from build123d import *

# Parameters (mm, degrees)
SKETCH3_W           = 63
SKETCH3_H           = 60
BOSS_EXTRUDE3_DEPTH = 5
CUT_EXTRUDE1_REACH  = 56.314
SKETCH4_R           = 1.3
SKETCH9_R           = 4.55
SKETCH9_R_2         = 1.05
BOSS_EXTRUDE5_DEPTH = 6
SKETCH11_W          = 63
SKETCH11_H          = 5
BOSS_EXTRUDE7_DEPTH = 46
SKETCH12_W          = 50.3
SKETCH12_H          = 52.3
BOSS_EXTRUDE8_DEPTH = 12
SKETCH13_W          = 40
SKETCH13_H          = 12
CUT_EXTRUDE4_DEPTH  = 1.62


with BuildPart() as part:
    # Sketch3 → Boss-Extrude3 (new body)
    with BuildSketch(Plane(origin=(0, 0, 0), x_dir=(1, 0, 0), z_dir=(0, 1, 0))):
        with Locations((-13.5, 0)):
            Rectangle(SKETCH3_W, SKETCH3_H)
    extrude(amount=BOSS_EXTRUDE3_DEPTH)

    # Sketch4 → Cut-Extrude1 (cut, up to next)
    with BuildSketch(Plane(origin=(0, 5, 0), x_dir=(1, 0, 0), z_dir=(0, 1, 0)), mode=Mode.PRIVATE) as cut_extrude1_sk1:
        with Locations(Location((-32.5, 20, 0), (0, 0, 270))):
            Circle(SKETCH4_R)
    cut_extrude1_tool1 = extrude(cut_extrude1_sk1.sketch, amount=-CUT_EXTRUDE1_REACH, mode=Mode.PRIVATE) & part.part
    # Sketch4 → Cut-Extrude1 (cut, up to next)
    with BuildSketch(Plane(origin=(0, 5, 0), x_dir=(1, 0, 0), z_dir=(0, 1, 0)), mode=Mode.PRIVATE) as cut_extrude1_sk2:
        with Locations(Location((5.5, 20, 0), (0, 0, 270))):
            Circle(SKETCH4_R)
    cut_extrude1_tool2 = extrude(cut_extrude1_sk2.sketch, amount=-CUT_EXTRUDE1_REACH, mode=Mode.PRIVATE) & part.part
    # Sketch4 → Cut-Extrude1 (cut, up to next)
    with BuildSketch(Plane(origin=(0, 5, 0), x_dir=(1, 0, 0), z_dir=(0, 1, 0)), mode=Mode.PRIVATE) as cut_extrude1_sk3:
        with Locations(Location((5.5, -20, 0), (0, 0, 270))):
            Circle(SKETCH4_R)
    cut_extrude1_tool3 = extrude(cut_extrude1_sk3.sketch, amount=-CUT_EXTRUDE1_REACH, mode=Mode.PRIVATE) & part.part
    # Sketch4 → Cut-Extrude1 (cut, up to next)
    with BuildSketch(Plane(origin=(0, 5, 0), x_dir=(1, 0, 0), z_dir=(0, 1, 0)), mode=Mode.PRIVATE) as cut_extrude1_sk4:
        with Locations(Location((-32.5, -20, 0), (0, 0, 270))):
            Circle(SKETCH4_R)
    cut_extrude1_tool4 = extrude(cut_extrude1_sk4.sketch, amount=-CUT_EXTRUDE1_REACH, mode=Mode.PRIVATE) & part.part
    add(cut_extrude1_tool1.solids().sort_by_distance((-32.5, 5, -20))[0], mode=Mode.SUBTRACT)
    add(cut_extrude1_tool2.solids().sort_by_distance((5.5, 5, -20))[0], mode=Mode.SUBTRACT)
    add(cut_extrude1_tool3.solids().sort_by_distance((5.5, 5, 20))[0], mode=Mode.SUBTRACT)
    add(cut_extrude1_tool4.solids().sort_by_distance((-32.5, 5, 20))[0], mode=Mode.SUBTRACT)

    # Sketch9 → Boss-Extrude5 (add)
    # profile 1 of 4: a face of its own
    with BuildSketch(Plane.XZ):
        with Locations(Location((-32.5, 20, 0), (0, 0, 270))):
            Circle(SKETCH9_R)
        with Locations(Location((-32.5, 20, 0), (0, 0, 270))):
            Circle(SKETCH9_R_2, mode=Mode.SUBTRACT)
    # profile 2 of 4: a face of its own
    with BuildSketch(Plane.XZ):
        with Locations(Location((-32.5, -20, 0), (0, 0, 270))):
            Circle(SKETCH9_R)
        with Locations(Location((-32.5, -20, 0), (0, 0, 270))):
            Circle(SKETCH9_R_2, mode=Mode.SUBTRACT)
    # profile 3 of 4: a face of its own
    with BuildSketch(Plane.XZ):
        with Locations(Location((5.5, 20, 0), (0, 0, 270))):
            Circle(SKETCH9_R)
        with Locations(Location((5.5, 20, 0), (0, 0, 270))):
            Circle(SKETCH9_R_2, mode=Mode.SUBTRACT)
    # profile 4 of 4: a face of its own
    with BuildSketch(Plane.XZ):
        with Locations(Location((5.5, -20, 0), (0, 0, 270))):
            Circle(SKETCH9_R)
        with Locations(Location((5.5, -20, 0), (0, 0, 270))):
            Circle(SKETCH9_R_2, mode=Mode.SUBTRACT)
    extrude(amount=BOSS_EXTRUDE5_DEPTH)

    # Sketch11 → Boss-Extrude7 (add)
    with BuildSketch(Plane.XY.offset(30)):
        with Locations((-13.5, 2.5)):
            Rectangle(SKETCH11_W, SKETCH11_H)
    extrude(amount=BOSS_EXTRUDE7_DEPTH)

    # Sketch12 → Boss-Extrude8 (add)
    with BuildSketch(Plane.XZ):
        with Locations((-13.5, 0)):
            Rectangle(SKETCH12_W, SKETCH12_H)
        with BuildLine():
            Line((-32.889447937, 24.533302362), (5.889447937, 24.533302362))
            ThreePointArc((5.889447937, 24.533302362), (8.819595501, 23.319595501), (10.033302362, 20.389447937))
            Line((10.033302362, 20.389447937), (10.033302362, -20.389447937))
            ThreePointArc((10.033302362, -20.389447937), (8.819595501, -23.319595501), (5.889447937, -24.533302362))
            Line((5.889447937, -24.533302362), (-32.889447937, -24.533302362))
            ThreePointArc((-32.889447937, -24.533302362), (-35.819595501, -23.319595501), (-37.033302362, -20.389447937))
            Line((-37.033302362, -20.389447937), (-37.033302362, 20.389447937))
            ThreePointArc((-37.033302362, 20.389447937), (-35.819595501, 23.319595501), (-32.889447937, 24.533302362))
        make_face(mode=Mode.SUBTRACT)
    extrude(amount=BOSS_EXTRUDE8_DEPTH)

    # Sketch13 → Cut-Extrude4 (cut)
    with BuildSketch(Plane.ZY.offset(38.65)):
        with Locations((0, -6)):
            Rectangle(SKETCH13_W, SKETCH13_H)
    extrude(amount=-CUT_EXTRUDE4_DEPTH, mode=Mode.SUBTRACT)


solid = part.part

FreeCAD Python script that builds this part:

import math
import FreeCAD as App
import Part
import Sketcher

V = App.Vector

doc = App.newDocument("Part")
body = doc.addObject("PartDesign::Body", "Body")

sketch1 = body.newObject("Sketcher::SketchObject", "Sketch")
sketch1.AttachmentSupport = (doc.getObject("XZ_Plane"), [""])
sketch1.MapMode = "FlatFace"
sketch1.addGeometry(Part.LineSegment(V(-45, -30, 0), V(-45, 30, 0)), False)
sketch1.addGeometry(Part.LineSegment(V(-45, 30, 0), V(18, 30, 0)), False)
sketch1.addGeometry(Part.LineSegment(V(18, 30, 0), V(18, -30, 0)), False)
sketch1.addGeometry(Part.LineSegment(V(18, -30, 0), V(-45, -30, 0)), False)
sketch1.addConstraint(Sketcher.Constraint("Coincident", 0, 2, 1, 1))
sketch1.addConstraint(Sketcher.Constraint("Coincident", 1, 2, 2, 1))
sketch1.addConstraint(Sketcher.Constraint("Coincident", 2, 2, 3, 1))
sketch1.addConstraint(Sketcher.Constraint("Coincident", 3, 2, 0, 1))
sketch1.addConstraint(Sketcher.Constraint("Vertical", 0))
sketch1.addConstraint(Sketcher.Constraint("Horizontal", 1))
sketch1.addConstraint(Sketcher.Constraint("Vertical", 2))
sketch1.addConstraint(Sketcher.Constraint("Horizontal", 3))
sketch1.addConstraint(Sketcher.Constraint("DistanceX", 1, 1, 1, 2, 63.0))
sketch1.addConstraint(Sketcher.Constraint("DistanceY", 0, 1, 0, 2, 60.0))
sketch1.addConstraint(Sketcher.Constraint("DistanceX", 0, 2, -1, 1, 45.0))
sketch1.addConstraint(Sketcher.Constraint("DistanceY", -1, 1, 0, 2, 30.0))
pad1 = body.newObject("PartDesign::Pad", "Pad")
pad1.Profile = sketch1
pad1.Length = 5
pad1.Reversed = True

sketch2 = body.newObject("Sketcher::SketchObject", "Sketch001")
sketch2.AttachmentSupport = (doc.getObject("XZ_Plane"), [""])
sketch2.MapMode = "FlatFace"
sketch2.AttachmentOffset = App.Placement(V(0, 0, -5), App.Rotation())
sketch2.addGeometry(Part.Circle(V(-32.5, -20, 0), V(0, 0, 1), 1.3), False)
sketch2.addConstraint(Sketcher.Constraint("Diameter", 0, 2.6))
sketch2.addConstraint(Sketcher.Constraint("DistanceY", 0, 3, -1, 1, 20.0))
sketch2.addConstraint(Sketcher.Constraint("DistanceX", 0, 3, -1, 1, 32.5))
pocket1 = body.newObject("PartDesign::Pocket", "Pocket")
pocket1.Profile = sketch2
pocket1.Type = "UpToFirst"
pocket1.Reversed = True

sketch3 = body.newObject("Sketcher::SketchObject", "Sketch002")
sketch3.AttachmentSupport = (doc.getObject("XZ_Plane"), [""])
sketch3.MapMode = "FlatFace"
sketch3.AttachmentOffset = App.Placement(V(0, 0, -5), App.Rotation())
sketch3.addGeometry(Part.Circle(V(5.5, -20, 0), V(0, 0, 1), 1.3), False)
sketch3.addConstraint(Sketcher.Constraint("Diameter", 0, 2.6))
sketch3.addConstraint(Sketcher.Constraint("DistanceY", 0, 3, -1, 1, 20.0))
sketch3.addConstraint(Sketcher.Constraint("DistanceX", -1, 1, 0, 3, 5.5))
pocket2 = body.newObject("PartDesign::Pocket", "Pocket001")
pocket2.Profile = sketch3
pocket2.Type = "UpToFirst"
pocket2.Reversed = True

sketch4 = body.newObject("Sketcher::SketchObject", "Sketch003")
sketch4.AttachmentSupport = (doc.getObject("XZ_Plane"), [""])
sketch4.MapMode = "FlatFace"
sketch4.AttachmentOffset = App.Placement(V(0, 0, -5), App.Rotation())
sketch4.addGeometry(Part.Circle(V(5.5, 20, 0), V(0, 0, 1), 1.3), False)
sketch4.addConstraint(Sketcher.Constraint("Diameter", 0, 2.6))
sketch4.addConstraint(Sketcher.Constraint("DistanceY", -1, 1, 0, 3, 20.0))
sketch4.addConstraint(Sketcher.Constraint("DistanceX", -1, 1, 0, 3, 5.5))
pocket3 = body.newObject("PartDesign::Pocket", "Pocket002")
pocket3.Profile = sketch4
pocket3.Type = "UpToFirst"
pocket3.Reversed = True

sketch5 = body.newObject("Sketcher::SketchObject", "Sketch004")
sketch5.AttachmentSupport = (doc.getObject("XZ_Plane"), [""])
sketch5.MapMode = "FlatFace"
sketch5.AttachmentOffset = App.Placement(V(0, 0, -5), App.Rotation())
sketch5.addGeometry(Part.Circle(V(-32.5, 20, 0), V(0, 0, 1), 1.3), False)
sketch5.addConstraint(Sketcher.Constraint("Diameter", 0, 2.6))
sketch5.addConstraint(Sketcher.Constraint("DistanceY", -1, 1, 0, 3, 20.0))
sketch5.addConstraint(Sketcher.Constraint("DistanceX", 0, 3, -1, 1, 32.5))
pocket4 = body.newObject("PartDesign::Pocket", "Pocket003")
pocket4.Profile = sketch5
pocket4.Type = "UpToFirst"
pocket4.Reversed = True

sketch6 = body.newObject("Sketcher::SketchObject", "Sketch005")
sketch6.AttachmentSupport = (doc.getObject("XZ_Plane"), [""])
sketch6.MapMode = "FlatFace"
sketch6.addGeometry(Part.Circle(V(-32.5, 20, 0), V(0, 0, 1), 4.5), False)
sketch6.addGeometry(Part.Circle(V(-32.5, 20, 0), V(0, 0, 1), 1.1), False)
sketch6.addGeometry(Part.Circle(V(-32.5, -20, 0), V(0, 0, 1), 4.5), False)
sketch6.addGeometry(Part.Circle(V(-32.5, -20, 0), V(0, 0, 1), 1.1), False)
sketch6.addGeometry(Part.Circle(V(5.5, 20, 0), V(0, 0, 1), 4.5), False)
sketch6.addGeometry(Part.Circle(V(5.5, 20, 0), V(0, 0, 1), 1.1), False)
sketch6.addGeometry(Part.Circle(V(5.5, -20, 0), V(0, 0, 1), 4.5), False)
sketch6.addGeometry(Part.Circle(V(5.5, -20, 0), V(0, 0, 1), 1.1), False)
sketch6.addConstraint(Sketcher.Constraint("Coincident", 1, 3, 0, 3))
sketch6.addConstraint(Sketcher.Constraint("Coincident", 3, 3, 2, 3))
sketch6.addConstraint(Sketcher.Constraint("Coincident", 5, 3, 4, 3))
sketch6.addConstraint(Sketcher.Constraint("Coincident", 7, 3, 6, 3))
sketch6.addConstraint(Sketcher.Constraint("Equal", 0, 2))
sketch6.addConstraint(Sketcher.Constraint("Equal", 1, 3))
sketch6.addConstraint(Sketcher.Constraint("Equal", 2, 4))
sketch6.addConstraint(Sketcher.Constraint("Equal", 3, 5))
sketch6.addConstraint(Sketcher.Constraint("Equal", 4, 6))
sketch6.addConstraint(Sketcher.Constraint("Equal", 5, 7))
sketch6.addConstraint(Sketcher.Constraint("Symmetric", 0, 3, 2, 3, -1))
sketch6.addConstraint(Sketcher.Constraint("Symmetric", 4, 3, 6, 3, -1))
sketch6.addConstraint(Sketcher.Constraint("Horizontal", 1, 3, 4, 3))
sketch6.addConstraint(Sketcher.Constraint("Diameter", 0, 9.1))
sketch6.addConstraint(Sketcher.Constraint("Diameter", 1, 2.1))
sketch6.addConstraint(Sketcher.Constraint("DistanceY", -1, 1, 0, 3, 20.0))
sketch6.addConstraint(Sketcher.Constraint("DistanceX", 0, 3, 4, 3, 38.0))
sketch6.addConstraint(Sketcher.Constraint("DistanceX", 0, 3, -1, 1, 32.5))
pad2 = body.newObject("PartDesign::Pad", "Pad001")
pad2.Profile = sketch6
pad2.Length = 6

sketch7 = body.newObject("Sketcher::SketchObject", "Sketch006")
sketch7.AttachmentSupport = (doc.getObject("XY_Plane"), [""])
sketch7.MapMode = "FlatFace"
sketch7.AttachmentOffset = App.Placement(V(0, 0, 30), App.Rotation())
sketch7.addGeometry(Part.LineSegment(V(-45, 5, 0), V(-45, 0, 0)), False)
sketch7.addGeometry(Part.LineSegment(V(-45, 0, 0), V(18, 0, 0)), False)
sketch7.addGeometry(Part.LineSegment(V(18, 0, 0), V(18, 5, 0)), False)
sketch7.addGeometry(Part.LineSegment(V(18, 5, 0), V(-45, 5, 0)), False)
sketch7.addConstraint(Sketcher.Constraint("Coincident", 0, 2, 1, 1))
sketch7.addConstraint(Sketcher.Constraint("Coincident", 1, 2, 2, 1))
sketch7.addConstraint(Sketcher.Constraint("Coincident", 2, 2, 3, 1))
sketch7.addConstraint(Sketcher.Constraint("Coincident", 3, 2, 0, 1))
sketch7.addConstraint(Sketcher.Constraint("Vertical", 0))
sketch7.addConstraint(Sketcher.Constraint("Horizontal", 1))
sketch7.addConstraint(Sketcher.Constraint("Vertical", 2))
sketch7.addConstraint(Sketcher.Constraint("Horizontal", 3))
sketch7.addConstraint(Sketcher.Constraint("PointOnObject", 0, 2, -1))
sketch7.addConstraint(Sketcher.Constraint("DistanceX", 1, 1, 1, 2, 63.0))
sketch7.addConstraint(Sketcher.Constraint("DistanceY", 0, 2, 0, 1, 5.0))
sketch7.addConstraint(Sketcher.Constraint("DistanceX", 0, 2, -1, 1, 45.0))
pad3 = body.newObject("PartDesign::Pad", "Pad002")
pad3.Profile = sketch7
pad3.Length = 46

sketch8 = body.newObject("Sketcher::SketchObject", "Sketch007")
sketch8.AttachmentSupport = (doc.getObject("XZ_Plane"), [""])
sketch8.MapMode = "FlatFace"
sketch8.addGeometry(Part.LineSegment(V(-38.6, 26.1, 0), V(-38.6, -26.1, 0)), False)
sketch8.addGeometry(Part.LineSegment(V(-38.6, -26.1, 0), V(11.7, -26.1, 0)), False)
sketch8.addGeometry(Part.LineSegment(V(11.7, -26.1, 0), V(11.7, 26.1, 0)), False)
sketch8.addGeometry(Part.LineSegment(V(11.7, 26.1, 0), V(-38.6, 26.1, 0)), False)
sketch8.addGeometry(Part.ArcOfCircle(Part.Circle(V(-32.9, 20.4, 0), V(0, 0, 1), 4.1), math.radians(90), math.radians(180)), False)
sketch8.addGeometry(Part.LineSegment(V(-32.9, 24.5, 0), V(5.9, 24.5, 0)), False)
sketch8.addGeometry(Part.ArcOfCircle(Part.Circle(V(5.9, 20.4, 0), V(0, 0, 1), 4.1), math.radians(0), math.radians(90)), False)
sketch8.addGeometry(Part.LineSegment(V(10, 20.4, 0), V(10, -20.4, 0)), False)
sketch8.addGeometry(Part.ArcOfCircle(Part.Circle(V(5.9, -20.4, 0), V(0, 0, 1), 4.1), math.radians(-90), math.radians(0)), False)
sketch8.addGeometry(Part.LineSegment(V(5.9, -24.5, 0), V(-32.9, -24.5, 0)), False)
sketch8.addGeometry(Part.ArcOfCircle(Part.Circle(V(-32.9, -20.4, 0), V(0, 0, 1), 4.1), math.radians(-180), math.radians(-90)), False)
sketch8.addGeometry(Part.LineSegment(V(-37, -20.4, 0), V(-37, 20.4, 0)), False)
sketch8.addConstraint(Sketcher.Constraint("Coincident", 0, 2, 1, 1))
sketch8.addConstraint(Sketcher.Constraint("Coincident", 1, 2, 2, 1))
sketch8.addConstraint(Sketcher.Constraint("Coincident", 2, 2, 3, 1))
sketch8.addConstraint(Sketcher.Constraint("Coincident", 3, 2, 0, 1))
sketch8.addConstraint(Sketcher.Constraint("Tangent", 4, 1, 5, 1))
sketch8.addConstraint(Sketcher.Constraint("Tangent", 5, 2, 6, 2))
sketch8.addConstraint(Sketcher.Constraint("Tangent", 6, 1, 7, 1))
sketch8.addConstraint(Sketcher.Constraint("Tangent", 7, 2, 8, 2))
sketch8.addConstraint(Sketcher.Constraint("Tangent", 8, 1, 9, 1))
sketch8.addConstraint(Sketcher.Constraint("Tangent", 9, 2, 10, 2))
sketch8.addConstraint(Sketcher.Constraint("Tangent", 10, 1, 11, 1))
sketch8.addConstraint(Sketcher.Constraint("Tangent", 11, 2, 4, 2))
sketch8.addConstraint(Sketcher.Constraint("Vertical", 0))
sketch8.addConstraint(Sketcher.Constraint("Horizontal", 1))
sketch8.addConstraint(Sketcher.Constraint("Vertical", 2))
sketch8.addConstraint(Sketcher.Constraint("Horizontal", 3))
sketch8.addConstraint(Sketcher.Constraint("Horizontal", 5))
sketch8.addConstraint(Sketcher.Constraint("Vertical", 7))
sketch8.addConstraint(Sketcher.Constraint("Horizontal", 9))
sketch8.addConstraint(Sketcher.Constraint("Vertical", 11))
sketch8.addConstraint(Sketcher.Constraint("Equal", 4, 6))
sketch8.addConstraint(Sketcher.Constraint("Equal", 6, 8))
sketch8.addConstraint(Sketcher.Constraint("Equal", 8, 10))
sketch8.addConstraint(Sketcher.Constraint("DistanceX", 1, 1, 1, 2, 50.3))
sketch8.addConstraint(Sketcher.Constraint("DistanceY", 0, 2, 0, 1, 52.3))
sketch8.addConstraint(Sketcher.Constraint("DistanceX", 0, 2, -1, 1, 38.65))
sketch8.addConstraint(Sketcher.Constraint("DistanceY", 0, 2, -1, 1, 26.15))
sketch8.addConstraint(Sketcher.Constraint("Radius", 4, 4.143854))
sketch8.addConstraint(Sketcher.Constraint("DistanceX", 5, 1, 5, 2, 38.778896))
sketch8.addConstraint(Sketcher.Constraint("DistanceY", 7, 2, 7, 1, 40.778896))
sketch8.addConstraint(Sketcher.Constraint("DistanceX", 4, 3, -1, 1, 32.889448))
sketch8.addConstraint(Sketcher.Constraint("DistanceY", -1, 1, 4, 3, 20.389448))
pad4 = body.newObject("PartDesign::Pad", "Pad003")
pad4.Profile = sketch8
pad4.Length = 12

sketch9 = body.newObject("Sketcher::SketchObject", "Sketch008")
sketch9.AttachmentSupport = (doc.getObject("YZ_Plane"), [""])
sketch9.MapMode = "FlatFace"
sketch9.AttachmentOffset = App.Placement(V(0, 0, -38.65), App.Rotation())
sketch9.addGeometry(Part.LineSegment(V(0, -20, 0), V(-12, -20, 0)), False)
sketch9.addGeometry(Part.LineSegment(V(-12, -20, 0), V(-12, 20, 0)), False)
sketch9.addGeometry(Part.LineSegment(V(-12, 20, 0), V(0, 20, 0)), False)
sketch9.addGeometry(Part.LineSegment(V(0, 20, 0), V(0, -20, 0)), False)
sketch9.addConstraint(Sketcher.Constraint("Coincident", 0, 2, 1, 1))
sketch9.addConstraint(Sketcher.Constraint("Coincident", 1, 2, 2, 1))
sketch9.addConstraint(Sketcher.Constraint("Coincident", 2, 2, 3, 1))
sketch9.addConstraint(Sketcher.Constraint("Coincident", 3, 2, 0, 1))
sketch9.addConstraint(Sketcher.Constraint("Horizontal", 0))
sketch9.addConstraint(Sketcher.Constraint("Vertical", 1))
sketch9.addConstraint(Sketcher.Constraint("Horizontal", 2))
sketch9.addConstraint(Sketcher.Constraint("Vertical", 3))
sketch9.addConstraint(Sketcher.Constraint("Symmetric", 2, 2, 3, 2, -1, 1))
sketch9.addConstraint(Sketcher.Constraint("DistanceX", 0, 2, 0, 1, 12.0))
sketch9.addConstraint(Sketcher.Constraint("DistanceY", 1, 1, 1, 2, 40.0))
pocket5 = body.newObject("PartDesign::Pocket", "Pocket004")
pocket5.Profile = sketch9
pocket5.Length = 1.62
pocket5.Reversed = True

doc.recompute()
